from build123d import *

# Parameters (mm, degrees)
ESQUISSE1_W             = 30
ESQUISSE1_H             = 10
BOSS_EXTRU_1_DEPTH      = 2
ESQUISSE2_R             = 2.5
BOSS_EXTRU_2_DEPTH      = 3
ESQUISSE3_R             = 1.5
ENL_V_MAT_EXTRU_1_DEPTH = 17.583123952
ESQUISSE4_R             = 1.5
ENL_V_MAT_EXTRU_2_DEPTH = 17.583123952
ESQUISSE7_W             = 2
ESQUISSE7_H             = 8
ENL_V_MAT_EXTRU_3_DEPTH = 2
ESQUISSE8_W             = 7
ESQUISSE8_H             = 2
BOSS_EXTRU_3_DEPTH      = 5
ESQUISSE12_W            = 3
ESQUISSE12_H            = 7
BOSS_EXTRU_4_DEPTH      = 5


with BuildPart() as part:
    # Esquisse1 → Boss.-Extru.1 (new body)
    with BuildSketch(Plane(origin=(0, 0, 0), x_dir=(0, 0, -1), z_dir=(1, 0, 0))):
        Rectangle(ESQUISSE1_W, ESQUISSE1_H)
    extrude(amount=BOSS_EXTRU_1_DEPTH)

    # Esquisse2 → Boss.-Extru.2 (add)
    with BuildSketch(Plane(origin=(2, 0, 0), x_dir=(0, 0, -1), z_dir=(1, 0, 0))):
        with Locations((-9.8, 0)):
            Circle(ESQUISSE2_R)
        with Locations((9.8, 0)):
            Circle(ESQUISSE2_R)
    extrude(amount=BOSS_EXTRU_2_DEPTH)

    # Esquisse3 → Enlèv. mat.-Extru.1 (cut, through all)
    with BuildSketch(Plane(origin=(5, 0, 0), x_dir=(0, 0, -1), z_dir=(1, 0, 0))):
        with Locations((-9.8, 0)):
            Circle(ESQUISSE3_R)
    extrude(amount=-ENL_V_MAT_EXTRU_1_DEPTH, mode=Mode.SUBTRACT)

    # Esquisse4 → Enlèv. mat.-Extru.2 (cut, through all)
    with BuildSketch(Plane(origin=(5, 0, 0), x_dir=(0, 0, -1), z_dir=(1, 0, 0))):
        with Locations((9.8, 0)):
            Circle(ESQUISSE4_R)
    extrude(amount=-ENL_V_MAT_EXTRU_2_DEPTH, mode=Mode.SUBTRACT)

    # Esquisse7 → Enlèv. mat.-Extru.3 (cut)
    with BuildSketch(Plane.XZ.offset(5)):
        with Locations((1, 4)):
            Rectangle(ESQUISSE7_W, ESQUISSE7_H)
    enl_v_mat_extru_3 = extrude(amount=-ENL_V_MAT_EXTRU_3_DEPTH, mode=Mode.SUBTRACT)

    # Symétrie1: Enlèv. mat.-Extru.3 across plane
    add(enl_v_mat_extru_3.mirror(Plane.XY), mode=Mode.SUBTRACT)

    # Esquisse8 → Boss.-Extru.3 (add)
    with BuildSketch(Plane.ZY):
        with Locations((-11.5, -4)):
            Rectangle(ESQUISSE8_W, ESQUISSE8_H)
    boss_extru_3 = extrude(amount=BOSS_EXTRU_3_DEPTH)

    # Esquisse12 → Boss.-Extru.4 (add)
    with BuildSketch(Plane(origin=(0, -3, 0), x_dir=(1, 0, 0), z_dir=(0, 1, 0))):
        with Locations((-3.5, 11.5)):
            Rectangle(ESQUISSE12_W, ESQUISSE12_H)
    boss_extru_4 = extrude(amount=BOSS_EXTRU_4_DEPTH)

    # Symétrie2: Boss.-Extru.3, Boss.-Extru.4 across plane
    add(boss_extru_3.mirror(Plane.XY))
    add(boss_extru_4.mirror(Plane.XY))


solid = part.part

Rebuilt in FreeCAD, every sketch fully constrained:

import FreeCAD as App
import Part
import Sketcher


def add_polygon(sketch, points):
    """Adds a closed chain of lines whose ends are joined by coincident constraints."""
    first, n = sketch.GeometryCount, len(points)
    for a, b in zip(points, points[1:] + points[:1]):
        sketch.addGeometry(Part.LineSegment(App.Vector(*a, 0), App.Vector(*b, 0)), False)
    for i in range(n):
        sketch.addConstraint(Sketcher.Constraint("Coincident", first + i, 2, first + (i + 1) % n, 1))

doc = App.newDocument("Part")
body = doc.addObject("PartDesign::Body", "Body")

# Sketch on YZ plane
sketch1 = body.newObject("Sketcher::SketchObject", "Sketch")
sketch1.AttachmentSupport = (doc.getObject("YZ_Plane"), [""])
sketch1.MapMode = "FlatFace"
add_polygon(sketch1, [(5, 15), (-5, 15), (-5, -15), (5, -15)])  # lines 0-3
sketch1.addConstraint([
    Sketcher.Constraint("Horizontal", 0),
    Sketcher.Constraint("Vertical", 1),
    Sketcher.Constraint("Horizontal", 2),
    Sketcher.Constraint("Vertical", 3),
    Sketcher.Constraint("Symmetric", 0, 2, 2, 2, -1, 1),
    Sketcher.Constraint("DistanceX", 0, 2, 0, 1, 10.0),
    Sketcher.Constraint("DistanceY", 1, 2, 1, 1, 30.0),
])
pad1 = body.newObject("PartDesign::Pad", "Pad")
pad1.Profile = sketch1
pad1.Length = 2

# Sketch on YZ plane
sketch2 = body.newObject("Sketcher::SketchObject", "Sketch001")
sketch2.AttachmentSupport = (doc.getObject("YZ_Plane"), [""])
sketch2.MapMode = "FlatFace"
sketch2.AttachmentOffset = App.Placement(App.Vector(0, 0, 2), App.Rotation())
sketch2.addGeometry([
    Part.Circle(App.Vector(0, 9.8, 0), App.Vector(0, 0, 1), 2.5),
    Part.Circle(App.Vector(0, -9.8, 0), App.Vector(0, 0, 1), 2.5),
], False)
sketch2.addConstraint([
    Sketcher.Constraint("Equal", 0, 1),
    Sketcher.Constraint("Symmetric", 0, 3, 1, 3, -1, 1),
    Sketcher.Constraint("PointOnObject", 0, 3, -2),
    Sketcher.Constraint("Diameter", 0, 5.0),
    Sketcher.Constraint("DistanceY", -1, 1, 0, 3, 9.8),
])
pad2 = body.newObject("PartDesign::Pad", "Pad001")
pad2.Profile = sketch2
pad2.Length = 3

# Sketch on YZ plane
sketch3 = body.newObject("Sketcher::SketchObject", "Sketch002")
sketch3.AttachmentSupport = (doc.getObject("YZ_Plane"), [""])
sketch3.MapMode = "FlatFace"
sketch3.AttachmentOffset = App.Placement(App.Vector(0, 0, 5), App.Rotation())
sketch3.addGeometry(Part.Circle(App.Vector(0, 9.8, 0), App.Vector(0, 0, 1), 1.5), False)
sketch3.addConstraint([
    Sketcher.Constraint("PointOnObject", 0, 3, -2),
    Sketcher.Constraint("Diameter", 0, 3.0),
    Sketcher.Constraint("DistanceY", -1, 1, 0, 3, 9.8),
])
pocket1 = body.newObject("PartDesign::Pocket", "Pocket")
pocket1.Profile = sketch3
pocket1.Type = "ThroughAll"

# Sketch on YZ plane
sketch4 = body.newObject("Sketcher::SketchObject", "Sketch003")
sketch4.AttachmentSupport = (doc.getObject("YZ_Plane"), [""])
sketch4.MapMode = "FlatFace"
sketch4.AttachmentOffset = App.Placement(App.Vector(0, 0, 5), App.Rotation())
sketch4.addGeometry(Part.Circle(App.Vector(0, -9.8, 0), App.Vector(0, 0, 1), 1.5), False)
sketch4.addConstraint([
    Sketcher.Constraint("PointOnObject", 0, 3, -2),
    Sketcher.Constraint("Diameter", 0, 3.0),
    Sketcher.Constraint("DistanceY", 0, 3, -1, 1, 9.8),
])
pocket2 = body.newObject("PartDesign::Pocket", "Pocket001")
pocket2.Profile = sketch4
pocket2.Type = "ThroughAll"

# Sketch on XZ plane
sketch5 = body.newObject("Sketcher::SketchObject", "Sketch004")
sketch5.AttachmentSupport = (doc.getObject("XZ_Plane"), [""])
sketch5.MapMode = "FlatFace"
sketch5.AttachmentOffset = App.Placement(App.Vector(0, 0, 5), App.Rotation())
add_polygon(sketch5, [(0, 8), (0, 0), (2, 0), (2, 8)])  # lines 0-3
sketch5.addConstraint([
    Sketcher.Constraint("Vertical", 0),
    Sketcher.Constraint("Horizontal", 1),
    Sketcher.Constraint("Vertical", 2),
    Sketcher.Constraint("Horizontal", 3),
    Sketcher.Constraint("Coincident", 0, 2, -1, 1),
    Sketcher.Constraint("DistanceX", 1, 1, 1, 2, 2.0),
    Sketcher.Constraint("DistanceY", 0, 2, 0, 1, 8.0),
])
pocket3 = body.newObject("PartDesign::Pocket", "Pocket002")
pocket3.Profile = sketch5
pocket3.Length = 2
doc.recompute()

mirrored = body.newObject("PartDesign::Mirrored", "Mirrored")
mirrored.Originals = [pocket3]
mirrored.MirrorPlane = (doc.getObject("XY_Plane"), [""])
body.Tip = mirrored

# Sketch on YZ plane
sketch6 = body.newObject("Sketcher::SketchObject", "Sketch005")
sketch6.AttachmentSupport = (doc.getObject("YZ_Plane"), [""])
sketch6.MapMode = "FlatFace"
add_polygon(sketch6, [(-3, -15), (-5, -15), (-5, -8), (-3, -8)])  # lines 0-3
sketch6.addConstraint([
    Sketcher.Constraint("Horizontal", 0),
    Sketcher.Constraint("Vertical", 1),
    Sketcher.Constraint("Horizontal", 2),
    Sketcher.Constraint("Vertical", 3),
    Sketcher.Constraint("DistanceX", 0, 2, 0, 1, 2.0),
    Sketcher.Constraint("DistanceY", 1, 1, 1, 2, 7.0),
    Sketcher.Constraint("DistanceX", 0, 2, -1, 1, 5.0),
    Sketcher.Constraint("DistanceY", 0, 2, -1, 1, 15.0),
])
pad3 = body.newObject("PartDesign::Pad", "Pad002")
pad3.Profile = sketch6
pad3.Length = 5
pad3.Reversed = True

# Sketch on XZ plane
sketch7 = body.newObject("Sketcher::SketchObject", "Sketch006")
sketch7.AttachmentSupport = (doc.getObject("XZ_Plane"), [""])
sketch7.MapMode = "FlatFace"
sketch7.AttachmentOffset = App.Placement(App.Vector(0, 0, 3), App.Rotation())
add_polygon(sketch7, [(-5, -15), (-5, -8), (-2, -8), (-2, -15)])  # lines 0-3
sketch7.addConstraint([
    Sketcher.Constraint("Vertical", 0),
    Sketcher.Constraint("Horizontal", 1),
    Sketcher.Constraint("Vertical", 2),
    Sketcher.Constraint("Horizontal", 3),
    Sketcher.Constraint("DistanceX", 1, 1, 1, 2, 3.0),
    Sketcher.Constraint("DistanceY", 0, 1, 0, 2, 7.0),
    Sketcher.Constraint("DistanceX", 0, 2, -1, 1, 5.0),
    Sketcher.Constraint("DistanceY", 0, 2, -1, 1, 8.0),
])
pad4 = body.newObject("PartDesign::Pad", "Pad003")
pad4.Profile = sketch7
pad4.Length = 5
pad4.Reversed = True
doc.recompute()

mirrored2 = body.newObject("PartDesign::Mirrored", "Mirrored001")
mirrored2.Originals = [pad3, pad4]
mirrored2.MirrorPlane = (doc.getObject("XY_Plane"), [""])
body.Tip = mirrored2

doc.recompute()
